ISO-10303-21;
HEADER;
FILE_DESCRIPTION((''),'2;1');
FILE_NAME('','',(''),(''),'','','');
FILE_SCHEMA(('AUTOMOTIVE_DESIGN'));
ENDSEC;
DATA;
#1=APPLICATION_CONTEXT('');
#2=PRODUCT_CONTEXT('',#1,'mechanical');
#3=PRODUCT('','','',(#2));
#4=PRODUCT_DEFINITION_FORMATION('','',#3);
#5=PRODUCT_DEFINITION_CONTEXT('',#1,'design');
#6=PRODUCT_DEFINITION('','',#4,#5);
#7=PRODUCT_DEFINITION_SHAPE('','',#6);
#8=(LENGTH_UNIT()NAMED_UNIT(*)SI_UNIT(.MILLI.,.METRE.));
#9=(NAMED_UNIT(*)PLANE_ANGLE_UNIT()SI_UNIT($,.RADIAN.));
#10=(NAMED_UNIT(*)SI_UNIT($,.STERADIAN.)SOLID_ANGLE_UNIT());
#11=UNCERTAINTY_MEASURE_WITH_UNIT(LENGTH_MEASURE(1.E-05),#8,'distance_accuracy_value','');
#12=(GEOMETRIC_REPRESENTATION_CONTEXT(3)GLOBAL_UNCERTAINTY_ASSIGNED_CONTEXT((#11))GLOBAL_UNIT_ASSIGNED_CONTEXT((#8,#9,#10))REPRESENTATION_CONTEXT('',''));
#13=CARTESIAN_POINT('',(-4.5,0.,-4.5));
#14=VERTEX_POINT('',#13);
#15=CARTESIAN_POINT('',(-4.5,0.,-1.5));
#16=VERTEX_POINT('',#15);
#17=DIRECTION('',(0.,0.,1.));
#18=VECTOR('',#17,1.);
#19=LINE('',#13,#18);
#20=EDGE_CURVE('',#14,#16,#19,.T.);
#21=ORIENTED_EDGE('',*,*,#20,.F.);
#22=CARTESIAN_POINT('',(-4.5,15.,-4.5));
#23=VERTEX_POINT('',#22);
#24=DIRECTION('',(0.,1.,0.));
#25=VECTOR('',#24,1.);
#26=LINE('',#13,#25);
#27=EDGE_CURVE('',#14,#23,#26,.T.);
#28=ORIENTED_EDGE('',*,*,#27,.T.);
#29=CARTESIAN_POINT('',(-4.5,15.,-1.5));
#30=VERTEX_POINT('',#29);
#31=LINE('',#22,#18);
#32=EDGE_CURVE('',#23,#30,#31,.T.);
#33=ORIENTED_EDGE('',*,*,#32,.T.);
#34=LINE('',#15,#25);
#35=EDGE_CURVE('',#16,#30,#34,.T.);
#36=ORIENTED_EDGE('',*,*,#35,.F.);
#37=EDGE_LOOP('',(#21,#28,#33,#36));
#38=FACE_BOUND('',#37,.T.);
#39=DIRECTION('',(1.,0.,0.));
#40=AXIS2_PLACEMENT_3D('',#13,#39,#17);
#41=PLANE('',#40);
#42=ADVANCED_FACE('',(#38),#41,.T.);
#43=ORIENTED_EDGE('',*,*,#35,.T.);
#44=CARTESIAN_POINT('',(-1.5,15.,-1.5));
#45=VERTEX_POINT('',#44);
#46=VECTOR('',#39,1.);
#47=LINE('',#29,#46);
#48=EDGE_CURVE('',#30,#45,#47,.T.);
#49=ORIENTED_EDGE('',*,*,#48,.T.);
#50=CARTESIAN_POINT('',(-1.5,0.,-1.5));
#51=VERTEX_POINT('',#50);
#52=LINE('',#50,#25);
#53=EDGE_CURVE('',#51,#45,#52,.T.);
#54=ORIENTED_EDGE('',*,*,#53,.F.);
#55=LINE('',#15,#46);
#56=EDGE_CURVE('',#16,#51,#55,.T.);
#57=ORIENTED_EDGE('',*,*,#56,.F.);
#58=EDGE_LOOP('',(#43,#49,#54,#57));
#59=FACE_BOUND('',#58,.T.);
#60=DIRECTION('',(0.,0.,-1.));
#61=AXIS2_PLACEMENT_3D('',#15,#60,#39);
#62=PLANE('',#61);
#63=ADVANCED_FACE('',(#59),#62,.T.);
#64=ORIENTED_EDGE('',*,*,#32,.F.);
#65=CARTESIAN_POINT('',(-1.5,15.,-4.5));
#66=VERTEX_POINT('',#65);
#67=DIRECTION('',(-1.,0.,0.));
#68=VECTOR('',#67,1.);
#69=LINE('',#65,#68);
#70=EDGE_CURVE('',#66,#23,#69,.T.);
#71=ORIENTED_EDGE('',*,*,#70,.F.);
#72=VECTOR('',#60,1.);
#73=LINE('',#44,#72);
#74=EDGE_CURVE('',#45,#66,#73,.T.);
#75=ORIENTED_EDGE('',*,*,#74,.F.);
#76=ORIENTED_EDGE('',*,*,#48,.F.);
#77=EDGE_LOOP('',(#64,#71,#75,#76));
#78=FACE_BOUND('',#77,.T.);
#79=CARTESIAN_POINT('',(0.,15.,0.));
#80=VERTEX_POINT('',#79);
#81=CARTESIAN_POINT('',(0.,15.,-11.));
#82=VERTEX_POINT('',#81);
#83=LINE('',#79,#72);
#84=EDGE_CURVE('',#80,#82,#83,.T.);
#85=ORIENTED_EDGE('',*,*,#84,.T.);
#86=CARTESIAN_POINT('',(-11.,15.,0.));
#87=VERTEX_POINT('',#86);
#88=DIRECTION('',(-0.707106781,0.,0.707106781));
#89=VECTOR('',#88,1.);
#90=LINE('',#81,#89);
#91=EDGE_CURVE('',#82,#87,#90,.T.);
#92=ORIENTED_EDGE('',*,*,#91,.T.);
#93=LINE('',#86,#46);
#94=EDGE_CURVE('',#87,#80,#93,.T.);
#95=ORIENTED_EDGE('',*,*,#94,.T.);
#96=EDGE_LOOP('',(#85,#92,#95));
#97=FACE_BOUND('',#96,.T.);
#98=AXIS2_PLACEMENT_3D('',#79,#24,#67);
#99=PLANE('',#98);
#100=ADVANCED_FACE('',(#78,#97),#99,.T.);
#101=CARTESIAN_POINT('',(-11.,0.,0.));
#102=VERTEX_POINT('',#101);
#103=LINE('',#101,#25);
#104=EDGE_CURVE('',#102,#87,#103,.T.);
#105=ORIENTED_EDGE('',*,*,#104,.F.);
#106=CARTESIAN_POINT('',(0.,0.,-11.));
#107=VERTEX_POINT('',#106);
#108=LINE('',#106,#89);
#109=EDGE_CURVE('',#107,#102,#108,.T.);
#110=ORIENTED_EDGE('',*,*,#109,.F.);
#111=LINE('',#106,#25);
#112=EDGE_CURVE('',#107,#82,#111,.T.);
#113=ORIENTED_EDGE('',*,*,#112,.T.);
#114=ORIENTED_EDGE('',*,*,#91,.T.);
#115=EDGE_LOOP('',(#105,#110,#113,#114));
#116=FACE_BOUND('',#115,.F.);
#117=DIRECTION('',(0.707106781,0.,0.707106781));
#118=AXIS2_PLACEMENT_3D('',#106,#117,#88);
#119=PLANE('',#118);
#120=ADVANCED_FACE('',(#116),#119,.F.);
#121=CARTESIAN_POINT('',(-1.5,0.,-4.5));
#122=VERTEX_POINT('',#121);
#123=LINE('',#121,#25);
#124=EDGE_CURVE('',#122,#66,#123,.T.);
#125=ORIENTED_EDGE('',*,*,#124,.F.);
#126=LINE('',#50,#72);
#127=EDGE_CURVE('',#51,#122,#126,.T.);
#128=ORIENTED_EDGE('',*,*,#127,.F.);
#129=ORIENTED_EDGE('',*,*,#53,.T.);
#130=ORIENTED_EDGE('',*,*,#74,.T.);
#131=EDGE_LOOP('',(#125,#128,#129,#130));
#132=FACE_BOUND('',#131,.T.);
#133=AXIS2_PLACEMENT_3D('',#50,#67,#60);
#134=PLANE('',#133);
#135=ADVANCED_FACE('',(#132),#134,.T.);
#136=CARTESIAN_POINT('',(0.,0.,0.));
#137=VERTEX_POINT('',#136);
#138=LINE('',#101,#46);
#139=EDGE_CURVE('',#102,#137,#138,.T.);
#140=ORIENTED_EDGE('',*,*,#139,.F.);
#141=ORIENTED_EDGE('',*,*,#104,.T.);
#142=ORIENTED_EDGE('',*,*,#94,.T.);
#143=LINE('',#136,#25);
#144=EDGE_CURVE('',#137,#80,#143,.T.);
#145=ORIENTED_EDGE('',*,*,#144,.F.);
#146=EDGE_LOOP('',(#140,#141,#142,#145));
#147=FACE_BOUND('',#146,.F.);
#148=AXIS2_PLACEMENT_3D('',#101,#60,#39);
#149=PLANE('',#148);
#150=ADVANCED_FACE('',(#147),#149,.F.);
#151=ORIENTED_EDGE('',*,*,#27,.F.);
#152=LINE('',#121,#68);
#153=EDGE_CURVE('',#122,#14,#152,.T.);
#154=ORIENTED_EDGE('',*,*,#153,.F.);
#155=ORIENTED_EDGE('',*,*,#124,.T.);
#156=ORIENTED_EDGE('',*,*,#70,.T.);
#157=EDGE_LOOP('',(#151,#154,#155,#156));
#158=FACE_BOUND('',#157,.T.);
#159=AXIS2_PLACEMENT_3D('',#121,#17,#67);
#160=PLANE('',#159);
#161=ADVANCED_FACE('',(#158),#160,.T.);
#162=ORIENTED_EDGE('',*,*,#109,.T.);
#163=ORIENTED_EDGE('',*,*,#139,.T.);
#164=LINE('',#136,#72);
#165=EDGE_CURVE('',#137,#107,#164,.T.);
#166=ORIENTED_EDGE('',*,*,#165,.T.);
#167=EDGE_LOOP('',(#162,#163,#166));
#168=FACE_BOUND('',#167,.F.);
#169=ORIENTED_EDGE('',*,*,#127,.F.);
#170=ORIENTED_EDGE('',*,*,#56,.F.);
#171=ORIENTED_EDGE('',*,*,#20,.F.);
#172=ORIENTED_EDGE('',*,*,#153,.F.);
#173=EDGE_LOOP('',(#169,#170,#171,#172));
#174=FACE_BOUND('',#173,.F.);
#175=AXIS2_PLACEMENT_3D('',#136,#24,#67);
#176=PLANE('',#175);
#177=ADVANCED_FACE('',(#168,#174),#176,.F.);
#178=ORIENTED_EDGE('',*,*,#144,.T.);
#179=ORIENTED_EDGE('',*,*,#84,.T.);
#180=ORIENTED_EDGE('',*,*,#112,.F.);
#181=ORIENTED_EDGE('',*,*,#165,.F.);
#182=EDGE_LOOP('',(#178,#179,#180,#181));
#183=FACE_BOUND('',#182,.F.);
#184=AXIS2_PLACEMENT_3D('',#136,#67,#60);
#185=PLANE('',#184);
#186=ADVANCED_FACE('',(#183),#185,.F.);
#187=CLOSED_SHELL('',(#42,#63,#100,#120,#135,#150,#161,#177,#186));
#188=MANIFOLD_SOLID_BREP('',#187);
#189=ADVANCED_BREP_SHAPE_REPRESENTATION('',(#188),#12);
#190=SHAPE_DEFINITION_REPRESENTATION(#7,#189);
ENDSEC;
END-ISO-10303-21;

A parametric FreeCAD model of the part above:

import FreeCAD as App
import Part
import Sketcher

V = App.Vector


def add_polygon(sketch, points):
    """Adds a closed chain of lines whose ends are joined by coincident constraints."""
    first, n = sketch.GeometryCount, len(points)
    for a, b in zip(points, points[1:] + points[:1]):
        sketch.addGeometry(Part.LineSegment(App.Vector(*a, 0), App.Vector(*b, 0)), False)
    for i in range(n):
        sketch.addConstraint(Sketcher.Constraint("Coincident", first + i, 2, first + (i + 1) % n, 1))

doc = App.newDocument("Part")
body = doc.addObject("PartDesign::Body", "Body")

# Sketch on XZ plane
sketch1 = doc.addObject("Sketcher::SketchObject", "Sketch")
body.addObject(sketch1)
sketch1.AttachmentSupport = (doc.XZ_Plane, [""])
sketch1.MapMode = "FlatFace"
add_polygon(sketch1, [(-11, 0), (0, 0), (0, -11)])  # lines 0-2
add_polygon(sketch1, [(-1.5, -1.5), (-4.5, -1.5), (-4.5, -4.5), (-1.5, -4.5)])  # lines 3-6
sketch1.addConstraint([
    Sketcher.Constraint("Horizontal", 0),
    Sketcher.Constraint("Vertical", 1),
    Sketcher.Constraint("Horizontal", 3),
    Sketcher.Constraint("Vertical", 4),
    Sketcher.Constraint("Horizontal", 5),
    Sketcher.Constraint("Vertical", 6),
    Sketcher.Constraint("Coincident", 0, 2, -1, 1),
    Sketcher.Constraint("Equal", 0, 1),
    Sketcher.Constraint("Equal", 5, 4),
    Sketcher.Constraint("DistanceX", 0, 1, 0, 2, 11.0),
    Sketcher.Constraint("DistanceX", 3, 2, 3, 1, 3.0),
    Sketcher.Constraint("DistanceY", 3, 2, -1, 1, 1.5),
    Sketcher.Constraint("DistanceX", 5, 2, -1, 1, 1.5),
])
pad1 = doc.addObject("PartDesign::Pad", "Pad")
body.addObject(pad1)
pad1.Profile = sketch1
pad1.Length = 15
pad1.Reversed = True

doc.recompute()
